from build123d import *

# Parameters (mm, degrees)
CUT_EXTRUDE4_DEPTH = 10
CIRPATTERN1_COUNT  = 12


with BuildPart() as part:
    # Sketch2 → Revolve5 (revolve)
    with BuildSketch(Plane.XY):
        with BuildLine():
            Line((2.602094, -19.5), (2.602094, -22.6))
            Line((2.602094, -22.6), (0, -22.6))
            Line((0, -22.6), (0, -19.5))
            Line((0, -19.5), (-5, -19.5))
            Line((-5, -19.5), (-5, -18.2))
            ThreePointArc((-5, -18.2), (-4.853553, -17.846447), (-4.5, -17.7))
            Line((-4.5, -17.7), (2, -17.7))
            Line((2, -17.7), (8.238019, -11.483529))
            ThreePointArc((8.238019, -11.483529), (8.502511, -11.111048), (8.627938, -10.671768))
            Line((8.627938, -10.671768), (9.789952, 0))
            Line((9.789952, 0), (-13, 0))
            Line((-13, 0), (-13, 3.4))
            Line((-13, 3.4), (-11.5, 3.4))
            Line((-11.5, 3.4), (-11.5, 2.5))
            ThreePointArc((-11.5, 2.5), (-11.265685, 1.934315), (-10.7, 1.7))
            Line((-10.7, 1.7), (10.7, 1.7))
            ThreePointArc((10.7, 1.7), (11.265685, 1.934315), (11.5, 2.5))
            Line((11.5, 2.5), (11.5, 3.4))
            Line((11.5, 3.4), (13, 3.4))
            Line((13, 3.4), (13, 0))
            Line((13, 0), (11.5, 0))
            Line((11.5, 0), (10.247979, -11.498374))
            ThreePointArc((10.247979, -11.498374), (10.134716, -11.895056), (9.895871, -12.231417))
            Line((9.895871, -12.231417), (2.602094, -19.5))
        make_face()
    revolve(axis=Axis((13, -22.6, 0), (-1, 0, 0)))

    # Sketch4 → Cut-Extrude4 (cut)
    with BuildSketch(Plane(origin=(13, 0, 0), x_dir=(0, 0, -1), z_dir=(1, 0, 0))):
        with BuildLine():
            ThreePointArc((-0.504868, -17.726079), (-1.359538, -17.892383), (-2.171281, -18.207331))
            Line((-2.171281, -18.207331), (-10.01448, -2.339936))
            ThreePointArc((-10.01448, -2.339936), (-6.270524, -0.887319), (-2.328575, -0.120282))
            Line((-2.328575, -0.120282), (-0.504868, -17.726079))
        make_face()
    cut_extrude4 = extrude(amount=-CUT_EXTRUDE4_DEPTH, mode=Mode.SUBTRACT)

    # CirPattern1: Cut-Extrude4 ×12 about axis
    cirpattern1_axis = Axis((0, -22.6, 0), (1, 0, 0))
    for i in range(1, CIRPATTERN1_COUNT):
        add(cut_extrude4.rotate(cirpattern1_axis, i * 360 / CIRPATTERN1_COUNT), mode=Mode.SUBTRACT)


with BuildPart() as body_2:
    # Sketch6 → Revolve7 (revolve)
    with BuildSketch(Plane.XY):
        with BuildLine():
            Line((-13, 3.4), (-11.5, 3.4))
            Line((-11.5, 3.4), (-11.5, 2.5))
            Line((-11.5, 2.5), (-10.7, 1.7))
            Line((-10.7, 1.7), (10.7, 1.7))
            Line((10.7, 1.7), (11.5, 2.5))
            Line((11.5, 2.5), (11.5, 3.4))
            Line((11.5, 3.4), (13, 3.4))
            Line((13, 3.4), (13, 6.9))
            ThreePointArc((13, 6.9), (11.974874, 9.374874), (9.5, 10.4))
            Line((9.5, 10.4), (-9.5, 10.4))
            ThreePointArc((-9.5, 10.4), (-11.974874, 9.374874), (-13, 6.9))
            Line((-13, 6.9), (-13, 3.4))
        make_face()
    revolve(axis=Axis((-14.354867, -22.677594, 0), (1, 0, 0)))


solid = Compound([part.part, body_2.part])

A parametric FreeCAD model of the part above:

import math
import FreeCAD as App
import Part
import Sketcher

V = App.Vector

doc = App.newDocument("Part")
body = doc.addObject("PartDesign::Body", "Body")

# Sketch on XY plane
sketch1 = body.newObject("Sketcher::SketchObject", "Sketch")
sketch1.AttachmentSupport = (doc.getObject("XY_Plane"), [""])
sketch1.MapMode = "FlatFace"
sketch1.addGeometry([
    Part.LineSegment(V(2.6, -22.6, 0), V(2.6, -19.5, 0)),  # 0
    Part.LineSegment(V(2.6, -19.5, 0), V(9.9, -12.2, 0)),  # 1
    Part.ArcOfCircle(Part.Circle(V(9, -11.4, 0), V(0, 0, 1), 1.2), math.radians(-45), math.radians(-6)),  # 2
    Part.LineSegment(V(10.2, -11.5, 0), V(11.5, 0, 0)),  # 3
    Part.LineSegment(V(11.5, 0, 0), V(13, 0, 0)),  # 4
    Part.LineSegment(V(13, 0, 0), V(13, 3.4, 0)),  # 5
    Part.LineSegment(V(13, 3.4, 0), V(11.5, 3.4, 0)),  # 6
    Part.LineSegment(V(11.5, 3.4, 0), V(11.5, 2.5, 0)),  # 7
    Part.ArcOfCircle(Part.Circle(V(10.7, 2.5, 0), V(0, 0, 1), 0.8), math.radians(-90), math.radians(0)),  # 8
    Part.LineSegment(V(10.7, 1.7, 0), V(-10.7, 1.7, 0)),  # 9
    Part.ArcOfCircle(Part.Circle(V(-10.7, 2.5, 0), V(0, 0, 1), 0.8), math.radians(-180), math.radians(-90)),  # 10
    Part.LineSegment(V(-11.5, 2.5, 0), V(-11.5, 3.4, 0)),  # 11
    Part.LineSegment(V(-11.5, 3.4, 0), V(-13, 3.4, 0)),  # 12
    Part.LineSegment(V(-13, 3.4, 0), V(-13, 0, 0)),  # 13
    Part.LineSegment(V(-13, 0, 0), V(9.8, 0, 0)),  # 14
    Part.LineSegment(V(9.8, 0, 0), V(8.6, -10.7, 0)),  # 15
    Part.ArcOfCircle(Part.Circle(V(7.3, -10.5, 0), V(0, 0, 1), 1.4), math.radians(-45), math.radians(-6)),  # 16
    Part.LineSegment(V(8.2, -11.5, 0), V(2, -17.7, 0)),  # 17
    Part.LineSegment(V(2, -17.7, 0), V(-4.5, -17.7, 0)),  # 18
    Part.ArcOfCircle(Part.Circle(V(-4.5, -18.2, 0), V(0, 0, 1), 0.5), math.radians(90), math.radians(180)),  # 19
    Part.LineSegment(V(-5, -18.2, 0), V(-5, -19.5, 0)),  # 20
    Part.LineSegment(V(-5, -19.5, 0), V(0, -19.5, 0)),  # 21
    Part.LineSegment(V(0, -19.5, 0), V(0, -22.6, 0)),  # 22
    Part.LineSegment(V(0, -22.6, 0), V(2.6, -22.6, 0)),  # 23
], False)
sketch1.addGeometry(Part.LineSegment(V(13, -22.6, 0), V(-13, -22.6, 0)), True)  # axis
sketch1.addConstraint([
    Sketcher.Constraint("Coincident", 0, 2, 1, 1),
    Sketcher.Constraint("Coincident", 1, 2, 2, 1),
    Sketcher.Constraint("Coincident", 2, 2, 3, 1),
    Sketcher.Constraint("Coincident", 3, 2, 4, 1),
    Sketcher.Constraint("Coincident", 4, 2, 5, 1),
    Sketcher.Constraint("Coincident", 5, 2, 6, 1),
    Sketcher.Constraint("Coincident", 6, 2, 7, 1),
    Sketcher.Constraint("Tangent", 7, 2, 8, 2),
    Sketcher.Constraint("Tangent", 8, 1, 9, 1),
    Sketcher.Constraint("Tangent", 9, 2, 10, 2),
    Sketcher.Constraint("Tangent", 10, 1, 11, 1),
    Sketcher.Constraint("Coincident", 11, 2, 12, 1),
    Sketcher.Constraint("Coincident", 12, 2, 13, 1),
    Sketcher.Constraint("Coincident", 13, 2, 14, 1),
    Sketcher.Constraint("Coincident", 14, 2, 15, 1),
    Sketcher.Constraint("Coincident", 15, 2, 16, 2),
    Sketcher.Constraint("Tangent", 16, 1, 17, 1),
    Sketcher.Constraint("Coincident", 17, 2, 18, 1),
    Sketcher.Constraint("Coincident", 18, 2, 19, 1),
    Sketcher.Constraint("Coincident", 19, 2, 20, 1),
    Sketcher.Constraint("Coincident", 20, 2, 21, 1),
    Sketcher.Constraint("Coincident", 21, 2, 22, 1),
    Sketcher.Constraint("Coincident", 22, 2, 23, 1),
    Sketcher.Constraint("Coincident", 23, 2, 0, 1),
    Sketcher.Constraint("Vertical", 0),
    Sketcher.Constraint("Horizontal", 4),
    Sketcher.Constraint("Vertical", 5),
    Sketcher.Constraint("Horizontal", 6),
    Sketcher.Constraint("Vertical", 7),
    Sketcher.Constraint("Horizontal", 9),
    Sketcher.Constraint("Vertical", 11),
    Sketcher.Constraint("Horizontal", 12),
    Sketcher.Constraint("Vertical", 13),
    Sketcher.Constraint("Horizontal", 14),
    Sketcher.Constraint("Horizontal", 18),
    Sketcher.Constraint("Vertical", 20),
    Sketcher.Constraint("Horizontal", 21),
    Sketcher.Constraint("Vertical", 22),
    Sketcher.Constraint("Horizontal", 23),
    Sketcher.Constraint("Horizontal", 24),
    Sketcher.Constraint("Equal", 8, 10),
    Sketcher.Constraint("Symmetric", 4, 2, 13, 2, -1, 1),
    Sketcher.Constraint("Symmetric", 6, 2, 11, 2, -2),
    Sketcher.Constraint("PointOnObject", 3, 2, -1),
    Sketcher.Constraint("PointOnObject", 21, 2, -2),
    Sketcher.Constraint("Parallel", 3, 15),
    Sketcher.Constraint("Parallel", 1, 17),
    Sketcher.Constraint("Horizontal", 0, 2, 20, 2),
    Sketcher.Constraint("Horizontal", 23, 2, 24, 1),
    Sketcher.Constraint("Vertical", 3, 2, 6, 2),
    Sketcher.Constraint("Vertical", 19, 3, 18, 2),
    Sketcher.Constraint("Vertical", 5, 2, 24, 1),
    Sketcher.Constraint("Vertical", 13, 2, 24, 2),
    Sketcher.Constraint("Radius", 8, 0.800001),
    Sketcher.Constraint("Radius", 19, 0.500001),
    Sketcher.Constraint("DistanceX", 21, 1, 21, 2, 5.0),
    Sketcher.Constraint("DistanceX", 24, 2, 24, 1, 26.0),
    Sketcher.Constraint("DistanceX", 4, 1, 4, 2, 1.5),
    Sketcher.Constraint("DistanceX", 18, 2, 18, 1, 6.5),
    Sketcher.Constraint("DistanceY", 0, 1, 0, 2, 3.1),
    Sketcher.Constraint("DistanceY", 5, 1, 5, 2, 3.4),
    Sketcher.Constraint("DistanceY", 7, 2, 7, 1, 0.9),
    Sketcher.Constraint("DistanceY", 20, 2, 20, 1, 1.3),
    Sketcher.Constraint("DistanceY", 0, 2, 8, 3, 22.000001),
    Sketcher.Constraint("DistanceY", 19, 3, -1, 1, 18.200001),
    Sketcher.Constraint("Radius", 2, 1.221562),
    Sketcher.Constraint("Radius", 16, 1.352758),
    Sketcher.Constraint("DistanceX", 14, 1, 14, 2, 22.789952),
    Sketcher.Constraint("DistanceX", 0, 2, 2, 3, 6.431501),
    Sketcher.Constraint("Distance", 1, 10.297159),
    Sketcher.Constraint("DistanceX", 23, 1, 23, 2, 2.602094),
    Sketcher.Constraint("DistanceX", -1, 1, 16, 3, 7.283129),
    Sketcher.Constraint("DistanceX", -1, 1, 2, 2, 10.247979),
    Sketcher.Constraint("DistanceY", 2, 3, 15, 2, 0.694378),
])
revolution = body.newObject("PartDesign::Revolution", "Revolution")
revolution.Profile = sketch1
revolution.ReferenceAxis = (sketch1, ["Axis0"])
revolution.Angle = 360

# Sketch on YZ plane
sketch2 = body.newObject("Sketcher::SketchObject", "Sketch001")
sketch2.AttachmentSupport = (doc.getObject("YZ_Plane"), [""])
sketch2.MapMode = "FlatFace"
sketch2.AttachmentOffset = App.Placement(V(0, 0, 13), App.Rotation())
sketch2.addGeometry([
    Part.ArcOfCircle(Part.Circle(V(-22.6, 0, 0), V(0, 0, 1), 4.9), math.radians(6), math.radians(26)),
    Part.LineSegment(V(-17.7, 0.5, 0), V(-0.1, 2.3, 0)),
    Part.ArcOfCircle(Part.Circle(V(-22.6, 0, 0), V(0, 0, 1), 22.6), math.radians(6), math.radians(26)),
    Part.LineSegment(V(-2.3, 10, 0), V(-18.2, 2.2, 0)),
], False)
sketch2.addConstraint([
    Sketcher.Constraint("Coincident", 0, 1, 1, 1),
    Sketcher.Constraint("Coincident", 1, 2, 2, 1),
    Sketcher.Constraint("Coincident", 2, 2, 3, 1),
    Sketcher.Constraint("Coincident", 3, 2, 0, 2),
    Sketcher.Constraint("PointOnObject", 2, 3, -1),
    Sketcher.Constraint("Equal", 1, 3),
    Sketcher.Constraint("Distance", 1, 17.7),
    Sketcher.Constraint("Radius", 0, 4.89999),
    Sketcher.Constraint("Radius", 2, 22.600007),
    Sketcher.Constraint("DistanceY", 3, 2, 2, 2, 7.843199),
    Sketcher.Constraint("DistanceX", 0, 3, -1, 1, 22.599991),
    Sketcher.Constraint("DistanceX", 0, 1, -1, 1, 17.726079),
    Sketcher.Constraint("DistanceY", -1, 1, 2, 2, 10.01448),
    Sketcher.Constraint("DistanceX", 0, 3, 1, 2, 22.479709),
])
pocket1 = body.newObject("PartDesign::Pocket", "Pocket")
pocket1.Profile = sketch2
pocket1.Length = 10
doc.recompute()

datumline = body.newObject("PartDesign::Line", "DatumLine")
datumline.Placement = App.Placement(V(0, -22.6, 0), App.Rotation(V(0, 0, 1), V(1, 0, 0)))
polarpattern = body.newObject("PartDesign::PolarPattern", "PolarPattern")
polarpattern.Originals = [pocket1]
polarpattern.Axis = (datumline, [""])
polarpattern.Angle = 360
polarpattern.Occurrences = 12
body.Tip = polarpattern
body2 = doc.addObject("PartDesign::Body", "Body001")

# Sketch on XY plane
sketch3 = body2.newObject("Sketcher::SketchObject", "Sketch002")
sketch3.AttachmentSupport = (doc.getObject("XY_Plane001"), [""])
sketch3.MapMode = "FlatFace"
sketch3.addGeometry([
    Part.LineSegment(V(-13, 3.4, 0), V(-11.5, 3.4, 0)),  # 0
    Part.LineSegment(V(-11.5, 3.4, 0), V(-11.5, 2.5, 0)),  # 1
    Part.LineSegment(V(-11.5, 2.5, 0), V(-10.7, 1.7, 0)),  # 2
    Part.LineSegment(V(-10.7, 1.7, 0), V(10.7, 1.7, 0)),  # 3
    Part.LineSegment(V(10.7, 1.7, 0), V(11.5, 2.5, 0)),  # 4
    Part.LineSegment(V(11.5, 2.5, 0), V(11.5, 3.4, 0)),  # 5
    Part.LineSegment(V(11.5, 3.4, 0), V(13, 3.4, 0)),  # 6
    Part.LineSegment(V(13, 3.4, 0), V(13, 6.9, 0)),  # 7
    Part.ArcOfCircle(Part.Circle(V(9.5, 6.9, 0), V(0, 0, 1), 3.5), math.radians(0), math.radians(90)),  # 8
    Part.LineSegment(V(9.5, 10.4, 0), V(-9.5, 10.4, 0)),  # 9
    Part.ArcOfCircle(Part.Circle(V(-9.5, 6.9, 0), V(0, 0, 1), 3.5), math.radians(90), math.radians(180)),  # 10
    Part.LineSegment(V(-13, 6.9, 0), V(-13, 3.4, 0)),  # 11
], False)
sketch3.addGeometry(Part.LineSegment(V(-13, -22.7, 0), V(13, -22.7, 0)), True)  # axis
sketch3.addConstraint([
    Sketcher.Constraint("Coincident", 0, 2, 1, 1),
    Sketcher.Constraint("Coincident", 1, 2, 2, 1),
    Sketcher.Constraint("Coincident", 2, 2, 3, 1),
    Sketcher.Constraint("Coincident", 3, 2, 4, 1),
    Sketcher.Constraint("Coincident", 4, 2, 5, 1),
    Sketcher.Constraint("Coincident", 5, 2, 6, 1),
    Sketcher.Constraint("Coincident", 6, 2, 7, 1),
    Sketcher.Constraint("Tangent", 7, 2, 8, 1),
    Sketcher.Constraint("Tangent", 8, 2, 9, 1),
    Sketcher.Constraint("Tangent", 9, 2, 10, 1),
    Sketcher.Constraint("Tangent", 10, 2, 11, 1),
    Sketcher.Constraint("Coincident", 11, 2, 0, 1),
    Sketcher.Constraint("Horizontal", 0),
    Sketcher.Constraint("Vertical", 1),
    Sketcher.Constraint("Horizontal", 3),
    Sketcher.Constraint("Vertical", 5),
    Sketcher.Constraint("Horizontal", 6),
    Sketcher.Constraint("Vertical", 7),
    Sketcher.Constraint("Horizontal", 9),
    Sketcher.Constraint("Vertical", 11),
    Sketcher.Constraint("Horizontal", 12),
    Sketcher.Constraint("Equal", 8, 10),
    Sketcher.Constraint("Symmetric", 1, 2, 4, 2, -2),
    Sketcher.Constraint("Symmetric", 6, 2, 11, 2, -2),
    Sketcher.Constraint("Perpendicular", 2, 4),
    Sketcher.Constraint("Vertical", 11, 2, 12, 1),
    Sketcher.Constraint("Vertical", 7, 2, 12, 2),
    Sketcher.Constraint("Equal", 2, 4),
    Sketcher.Constraint("Radius", 8, 3.499999),
    Sketcher.Constraint("DistanceX", 9, 2, 9, 1, 19.0),
    Sketcher.Constraint("DistanceX", 0, 1, 0, 2, 1.5),
    Sketcher.Constraint("DistanceX", 3, 1, 3, 2, 21.4),
    Sketcher.Constraint("DistanceY", 1, 2, 1, 1, 0.9),
    Sketcher.Constraint("DistanceY", 7, 1, 7, 2, 3.5),
    Sketcher.Constraint("DistanceY", -1, 1, 8, 3, 6.900001),
    Sketcher.Constraint("DistanceY", 12, 1, -1, 1, 22.677594),
])
revolution2 = body2.newObject("PartDesign::Revolution", "Revolution001")
revolution2.Profile = sketch3
revolution2.ReferenceAxis = (sketch3, ["Axis0"])
revolution2.Angle = 360

doc.recompute()
